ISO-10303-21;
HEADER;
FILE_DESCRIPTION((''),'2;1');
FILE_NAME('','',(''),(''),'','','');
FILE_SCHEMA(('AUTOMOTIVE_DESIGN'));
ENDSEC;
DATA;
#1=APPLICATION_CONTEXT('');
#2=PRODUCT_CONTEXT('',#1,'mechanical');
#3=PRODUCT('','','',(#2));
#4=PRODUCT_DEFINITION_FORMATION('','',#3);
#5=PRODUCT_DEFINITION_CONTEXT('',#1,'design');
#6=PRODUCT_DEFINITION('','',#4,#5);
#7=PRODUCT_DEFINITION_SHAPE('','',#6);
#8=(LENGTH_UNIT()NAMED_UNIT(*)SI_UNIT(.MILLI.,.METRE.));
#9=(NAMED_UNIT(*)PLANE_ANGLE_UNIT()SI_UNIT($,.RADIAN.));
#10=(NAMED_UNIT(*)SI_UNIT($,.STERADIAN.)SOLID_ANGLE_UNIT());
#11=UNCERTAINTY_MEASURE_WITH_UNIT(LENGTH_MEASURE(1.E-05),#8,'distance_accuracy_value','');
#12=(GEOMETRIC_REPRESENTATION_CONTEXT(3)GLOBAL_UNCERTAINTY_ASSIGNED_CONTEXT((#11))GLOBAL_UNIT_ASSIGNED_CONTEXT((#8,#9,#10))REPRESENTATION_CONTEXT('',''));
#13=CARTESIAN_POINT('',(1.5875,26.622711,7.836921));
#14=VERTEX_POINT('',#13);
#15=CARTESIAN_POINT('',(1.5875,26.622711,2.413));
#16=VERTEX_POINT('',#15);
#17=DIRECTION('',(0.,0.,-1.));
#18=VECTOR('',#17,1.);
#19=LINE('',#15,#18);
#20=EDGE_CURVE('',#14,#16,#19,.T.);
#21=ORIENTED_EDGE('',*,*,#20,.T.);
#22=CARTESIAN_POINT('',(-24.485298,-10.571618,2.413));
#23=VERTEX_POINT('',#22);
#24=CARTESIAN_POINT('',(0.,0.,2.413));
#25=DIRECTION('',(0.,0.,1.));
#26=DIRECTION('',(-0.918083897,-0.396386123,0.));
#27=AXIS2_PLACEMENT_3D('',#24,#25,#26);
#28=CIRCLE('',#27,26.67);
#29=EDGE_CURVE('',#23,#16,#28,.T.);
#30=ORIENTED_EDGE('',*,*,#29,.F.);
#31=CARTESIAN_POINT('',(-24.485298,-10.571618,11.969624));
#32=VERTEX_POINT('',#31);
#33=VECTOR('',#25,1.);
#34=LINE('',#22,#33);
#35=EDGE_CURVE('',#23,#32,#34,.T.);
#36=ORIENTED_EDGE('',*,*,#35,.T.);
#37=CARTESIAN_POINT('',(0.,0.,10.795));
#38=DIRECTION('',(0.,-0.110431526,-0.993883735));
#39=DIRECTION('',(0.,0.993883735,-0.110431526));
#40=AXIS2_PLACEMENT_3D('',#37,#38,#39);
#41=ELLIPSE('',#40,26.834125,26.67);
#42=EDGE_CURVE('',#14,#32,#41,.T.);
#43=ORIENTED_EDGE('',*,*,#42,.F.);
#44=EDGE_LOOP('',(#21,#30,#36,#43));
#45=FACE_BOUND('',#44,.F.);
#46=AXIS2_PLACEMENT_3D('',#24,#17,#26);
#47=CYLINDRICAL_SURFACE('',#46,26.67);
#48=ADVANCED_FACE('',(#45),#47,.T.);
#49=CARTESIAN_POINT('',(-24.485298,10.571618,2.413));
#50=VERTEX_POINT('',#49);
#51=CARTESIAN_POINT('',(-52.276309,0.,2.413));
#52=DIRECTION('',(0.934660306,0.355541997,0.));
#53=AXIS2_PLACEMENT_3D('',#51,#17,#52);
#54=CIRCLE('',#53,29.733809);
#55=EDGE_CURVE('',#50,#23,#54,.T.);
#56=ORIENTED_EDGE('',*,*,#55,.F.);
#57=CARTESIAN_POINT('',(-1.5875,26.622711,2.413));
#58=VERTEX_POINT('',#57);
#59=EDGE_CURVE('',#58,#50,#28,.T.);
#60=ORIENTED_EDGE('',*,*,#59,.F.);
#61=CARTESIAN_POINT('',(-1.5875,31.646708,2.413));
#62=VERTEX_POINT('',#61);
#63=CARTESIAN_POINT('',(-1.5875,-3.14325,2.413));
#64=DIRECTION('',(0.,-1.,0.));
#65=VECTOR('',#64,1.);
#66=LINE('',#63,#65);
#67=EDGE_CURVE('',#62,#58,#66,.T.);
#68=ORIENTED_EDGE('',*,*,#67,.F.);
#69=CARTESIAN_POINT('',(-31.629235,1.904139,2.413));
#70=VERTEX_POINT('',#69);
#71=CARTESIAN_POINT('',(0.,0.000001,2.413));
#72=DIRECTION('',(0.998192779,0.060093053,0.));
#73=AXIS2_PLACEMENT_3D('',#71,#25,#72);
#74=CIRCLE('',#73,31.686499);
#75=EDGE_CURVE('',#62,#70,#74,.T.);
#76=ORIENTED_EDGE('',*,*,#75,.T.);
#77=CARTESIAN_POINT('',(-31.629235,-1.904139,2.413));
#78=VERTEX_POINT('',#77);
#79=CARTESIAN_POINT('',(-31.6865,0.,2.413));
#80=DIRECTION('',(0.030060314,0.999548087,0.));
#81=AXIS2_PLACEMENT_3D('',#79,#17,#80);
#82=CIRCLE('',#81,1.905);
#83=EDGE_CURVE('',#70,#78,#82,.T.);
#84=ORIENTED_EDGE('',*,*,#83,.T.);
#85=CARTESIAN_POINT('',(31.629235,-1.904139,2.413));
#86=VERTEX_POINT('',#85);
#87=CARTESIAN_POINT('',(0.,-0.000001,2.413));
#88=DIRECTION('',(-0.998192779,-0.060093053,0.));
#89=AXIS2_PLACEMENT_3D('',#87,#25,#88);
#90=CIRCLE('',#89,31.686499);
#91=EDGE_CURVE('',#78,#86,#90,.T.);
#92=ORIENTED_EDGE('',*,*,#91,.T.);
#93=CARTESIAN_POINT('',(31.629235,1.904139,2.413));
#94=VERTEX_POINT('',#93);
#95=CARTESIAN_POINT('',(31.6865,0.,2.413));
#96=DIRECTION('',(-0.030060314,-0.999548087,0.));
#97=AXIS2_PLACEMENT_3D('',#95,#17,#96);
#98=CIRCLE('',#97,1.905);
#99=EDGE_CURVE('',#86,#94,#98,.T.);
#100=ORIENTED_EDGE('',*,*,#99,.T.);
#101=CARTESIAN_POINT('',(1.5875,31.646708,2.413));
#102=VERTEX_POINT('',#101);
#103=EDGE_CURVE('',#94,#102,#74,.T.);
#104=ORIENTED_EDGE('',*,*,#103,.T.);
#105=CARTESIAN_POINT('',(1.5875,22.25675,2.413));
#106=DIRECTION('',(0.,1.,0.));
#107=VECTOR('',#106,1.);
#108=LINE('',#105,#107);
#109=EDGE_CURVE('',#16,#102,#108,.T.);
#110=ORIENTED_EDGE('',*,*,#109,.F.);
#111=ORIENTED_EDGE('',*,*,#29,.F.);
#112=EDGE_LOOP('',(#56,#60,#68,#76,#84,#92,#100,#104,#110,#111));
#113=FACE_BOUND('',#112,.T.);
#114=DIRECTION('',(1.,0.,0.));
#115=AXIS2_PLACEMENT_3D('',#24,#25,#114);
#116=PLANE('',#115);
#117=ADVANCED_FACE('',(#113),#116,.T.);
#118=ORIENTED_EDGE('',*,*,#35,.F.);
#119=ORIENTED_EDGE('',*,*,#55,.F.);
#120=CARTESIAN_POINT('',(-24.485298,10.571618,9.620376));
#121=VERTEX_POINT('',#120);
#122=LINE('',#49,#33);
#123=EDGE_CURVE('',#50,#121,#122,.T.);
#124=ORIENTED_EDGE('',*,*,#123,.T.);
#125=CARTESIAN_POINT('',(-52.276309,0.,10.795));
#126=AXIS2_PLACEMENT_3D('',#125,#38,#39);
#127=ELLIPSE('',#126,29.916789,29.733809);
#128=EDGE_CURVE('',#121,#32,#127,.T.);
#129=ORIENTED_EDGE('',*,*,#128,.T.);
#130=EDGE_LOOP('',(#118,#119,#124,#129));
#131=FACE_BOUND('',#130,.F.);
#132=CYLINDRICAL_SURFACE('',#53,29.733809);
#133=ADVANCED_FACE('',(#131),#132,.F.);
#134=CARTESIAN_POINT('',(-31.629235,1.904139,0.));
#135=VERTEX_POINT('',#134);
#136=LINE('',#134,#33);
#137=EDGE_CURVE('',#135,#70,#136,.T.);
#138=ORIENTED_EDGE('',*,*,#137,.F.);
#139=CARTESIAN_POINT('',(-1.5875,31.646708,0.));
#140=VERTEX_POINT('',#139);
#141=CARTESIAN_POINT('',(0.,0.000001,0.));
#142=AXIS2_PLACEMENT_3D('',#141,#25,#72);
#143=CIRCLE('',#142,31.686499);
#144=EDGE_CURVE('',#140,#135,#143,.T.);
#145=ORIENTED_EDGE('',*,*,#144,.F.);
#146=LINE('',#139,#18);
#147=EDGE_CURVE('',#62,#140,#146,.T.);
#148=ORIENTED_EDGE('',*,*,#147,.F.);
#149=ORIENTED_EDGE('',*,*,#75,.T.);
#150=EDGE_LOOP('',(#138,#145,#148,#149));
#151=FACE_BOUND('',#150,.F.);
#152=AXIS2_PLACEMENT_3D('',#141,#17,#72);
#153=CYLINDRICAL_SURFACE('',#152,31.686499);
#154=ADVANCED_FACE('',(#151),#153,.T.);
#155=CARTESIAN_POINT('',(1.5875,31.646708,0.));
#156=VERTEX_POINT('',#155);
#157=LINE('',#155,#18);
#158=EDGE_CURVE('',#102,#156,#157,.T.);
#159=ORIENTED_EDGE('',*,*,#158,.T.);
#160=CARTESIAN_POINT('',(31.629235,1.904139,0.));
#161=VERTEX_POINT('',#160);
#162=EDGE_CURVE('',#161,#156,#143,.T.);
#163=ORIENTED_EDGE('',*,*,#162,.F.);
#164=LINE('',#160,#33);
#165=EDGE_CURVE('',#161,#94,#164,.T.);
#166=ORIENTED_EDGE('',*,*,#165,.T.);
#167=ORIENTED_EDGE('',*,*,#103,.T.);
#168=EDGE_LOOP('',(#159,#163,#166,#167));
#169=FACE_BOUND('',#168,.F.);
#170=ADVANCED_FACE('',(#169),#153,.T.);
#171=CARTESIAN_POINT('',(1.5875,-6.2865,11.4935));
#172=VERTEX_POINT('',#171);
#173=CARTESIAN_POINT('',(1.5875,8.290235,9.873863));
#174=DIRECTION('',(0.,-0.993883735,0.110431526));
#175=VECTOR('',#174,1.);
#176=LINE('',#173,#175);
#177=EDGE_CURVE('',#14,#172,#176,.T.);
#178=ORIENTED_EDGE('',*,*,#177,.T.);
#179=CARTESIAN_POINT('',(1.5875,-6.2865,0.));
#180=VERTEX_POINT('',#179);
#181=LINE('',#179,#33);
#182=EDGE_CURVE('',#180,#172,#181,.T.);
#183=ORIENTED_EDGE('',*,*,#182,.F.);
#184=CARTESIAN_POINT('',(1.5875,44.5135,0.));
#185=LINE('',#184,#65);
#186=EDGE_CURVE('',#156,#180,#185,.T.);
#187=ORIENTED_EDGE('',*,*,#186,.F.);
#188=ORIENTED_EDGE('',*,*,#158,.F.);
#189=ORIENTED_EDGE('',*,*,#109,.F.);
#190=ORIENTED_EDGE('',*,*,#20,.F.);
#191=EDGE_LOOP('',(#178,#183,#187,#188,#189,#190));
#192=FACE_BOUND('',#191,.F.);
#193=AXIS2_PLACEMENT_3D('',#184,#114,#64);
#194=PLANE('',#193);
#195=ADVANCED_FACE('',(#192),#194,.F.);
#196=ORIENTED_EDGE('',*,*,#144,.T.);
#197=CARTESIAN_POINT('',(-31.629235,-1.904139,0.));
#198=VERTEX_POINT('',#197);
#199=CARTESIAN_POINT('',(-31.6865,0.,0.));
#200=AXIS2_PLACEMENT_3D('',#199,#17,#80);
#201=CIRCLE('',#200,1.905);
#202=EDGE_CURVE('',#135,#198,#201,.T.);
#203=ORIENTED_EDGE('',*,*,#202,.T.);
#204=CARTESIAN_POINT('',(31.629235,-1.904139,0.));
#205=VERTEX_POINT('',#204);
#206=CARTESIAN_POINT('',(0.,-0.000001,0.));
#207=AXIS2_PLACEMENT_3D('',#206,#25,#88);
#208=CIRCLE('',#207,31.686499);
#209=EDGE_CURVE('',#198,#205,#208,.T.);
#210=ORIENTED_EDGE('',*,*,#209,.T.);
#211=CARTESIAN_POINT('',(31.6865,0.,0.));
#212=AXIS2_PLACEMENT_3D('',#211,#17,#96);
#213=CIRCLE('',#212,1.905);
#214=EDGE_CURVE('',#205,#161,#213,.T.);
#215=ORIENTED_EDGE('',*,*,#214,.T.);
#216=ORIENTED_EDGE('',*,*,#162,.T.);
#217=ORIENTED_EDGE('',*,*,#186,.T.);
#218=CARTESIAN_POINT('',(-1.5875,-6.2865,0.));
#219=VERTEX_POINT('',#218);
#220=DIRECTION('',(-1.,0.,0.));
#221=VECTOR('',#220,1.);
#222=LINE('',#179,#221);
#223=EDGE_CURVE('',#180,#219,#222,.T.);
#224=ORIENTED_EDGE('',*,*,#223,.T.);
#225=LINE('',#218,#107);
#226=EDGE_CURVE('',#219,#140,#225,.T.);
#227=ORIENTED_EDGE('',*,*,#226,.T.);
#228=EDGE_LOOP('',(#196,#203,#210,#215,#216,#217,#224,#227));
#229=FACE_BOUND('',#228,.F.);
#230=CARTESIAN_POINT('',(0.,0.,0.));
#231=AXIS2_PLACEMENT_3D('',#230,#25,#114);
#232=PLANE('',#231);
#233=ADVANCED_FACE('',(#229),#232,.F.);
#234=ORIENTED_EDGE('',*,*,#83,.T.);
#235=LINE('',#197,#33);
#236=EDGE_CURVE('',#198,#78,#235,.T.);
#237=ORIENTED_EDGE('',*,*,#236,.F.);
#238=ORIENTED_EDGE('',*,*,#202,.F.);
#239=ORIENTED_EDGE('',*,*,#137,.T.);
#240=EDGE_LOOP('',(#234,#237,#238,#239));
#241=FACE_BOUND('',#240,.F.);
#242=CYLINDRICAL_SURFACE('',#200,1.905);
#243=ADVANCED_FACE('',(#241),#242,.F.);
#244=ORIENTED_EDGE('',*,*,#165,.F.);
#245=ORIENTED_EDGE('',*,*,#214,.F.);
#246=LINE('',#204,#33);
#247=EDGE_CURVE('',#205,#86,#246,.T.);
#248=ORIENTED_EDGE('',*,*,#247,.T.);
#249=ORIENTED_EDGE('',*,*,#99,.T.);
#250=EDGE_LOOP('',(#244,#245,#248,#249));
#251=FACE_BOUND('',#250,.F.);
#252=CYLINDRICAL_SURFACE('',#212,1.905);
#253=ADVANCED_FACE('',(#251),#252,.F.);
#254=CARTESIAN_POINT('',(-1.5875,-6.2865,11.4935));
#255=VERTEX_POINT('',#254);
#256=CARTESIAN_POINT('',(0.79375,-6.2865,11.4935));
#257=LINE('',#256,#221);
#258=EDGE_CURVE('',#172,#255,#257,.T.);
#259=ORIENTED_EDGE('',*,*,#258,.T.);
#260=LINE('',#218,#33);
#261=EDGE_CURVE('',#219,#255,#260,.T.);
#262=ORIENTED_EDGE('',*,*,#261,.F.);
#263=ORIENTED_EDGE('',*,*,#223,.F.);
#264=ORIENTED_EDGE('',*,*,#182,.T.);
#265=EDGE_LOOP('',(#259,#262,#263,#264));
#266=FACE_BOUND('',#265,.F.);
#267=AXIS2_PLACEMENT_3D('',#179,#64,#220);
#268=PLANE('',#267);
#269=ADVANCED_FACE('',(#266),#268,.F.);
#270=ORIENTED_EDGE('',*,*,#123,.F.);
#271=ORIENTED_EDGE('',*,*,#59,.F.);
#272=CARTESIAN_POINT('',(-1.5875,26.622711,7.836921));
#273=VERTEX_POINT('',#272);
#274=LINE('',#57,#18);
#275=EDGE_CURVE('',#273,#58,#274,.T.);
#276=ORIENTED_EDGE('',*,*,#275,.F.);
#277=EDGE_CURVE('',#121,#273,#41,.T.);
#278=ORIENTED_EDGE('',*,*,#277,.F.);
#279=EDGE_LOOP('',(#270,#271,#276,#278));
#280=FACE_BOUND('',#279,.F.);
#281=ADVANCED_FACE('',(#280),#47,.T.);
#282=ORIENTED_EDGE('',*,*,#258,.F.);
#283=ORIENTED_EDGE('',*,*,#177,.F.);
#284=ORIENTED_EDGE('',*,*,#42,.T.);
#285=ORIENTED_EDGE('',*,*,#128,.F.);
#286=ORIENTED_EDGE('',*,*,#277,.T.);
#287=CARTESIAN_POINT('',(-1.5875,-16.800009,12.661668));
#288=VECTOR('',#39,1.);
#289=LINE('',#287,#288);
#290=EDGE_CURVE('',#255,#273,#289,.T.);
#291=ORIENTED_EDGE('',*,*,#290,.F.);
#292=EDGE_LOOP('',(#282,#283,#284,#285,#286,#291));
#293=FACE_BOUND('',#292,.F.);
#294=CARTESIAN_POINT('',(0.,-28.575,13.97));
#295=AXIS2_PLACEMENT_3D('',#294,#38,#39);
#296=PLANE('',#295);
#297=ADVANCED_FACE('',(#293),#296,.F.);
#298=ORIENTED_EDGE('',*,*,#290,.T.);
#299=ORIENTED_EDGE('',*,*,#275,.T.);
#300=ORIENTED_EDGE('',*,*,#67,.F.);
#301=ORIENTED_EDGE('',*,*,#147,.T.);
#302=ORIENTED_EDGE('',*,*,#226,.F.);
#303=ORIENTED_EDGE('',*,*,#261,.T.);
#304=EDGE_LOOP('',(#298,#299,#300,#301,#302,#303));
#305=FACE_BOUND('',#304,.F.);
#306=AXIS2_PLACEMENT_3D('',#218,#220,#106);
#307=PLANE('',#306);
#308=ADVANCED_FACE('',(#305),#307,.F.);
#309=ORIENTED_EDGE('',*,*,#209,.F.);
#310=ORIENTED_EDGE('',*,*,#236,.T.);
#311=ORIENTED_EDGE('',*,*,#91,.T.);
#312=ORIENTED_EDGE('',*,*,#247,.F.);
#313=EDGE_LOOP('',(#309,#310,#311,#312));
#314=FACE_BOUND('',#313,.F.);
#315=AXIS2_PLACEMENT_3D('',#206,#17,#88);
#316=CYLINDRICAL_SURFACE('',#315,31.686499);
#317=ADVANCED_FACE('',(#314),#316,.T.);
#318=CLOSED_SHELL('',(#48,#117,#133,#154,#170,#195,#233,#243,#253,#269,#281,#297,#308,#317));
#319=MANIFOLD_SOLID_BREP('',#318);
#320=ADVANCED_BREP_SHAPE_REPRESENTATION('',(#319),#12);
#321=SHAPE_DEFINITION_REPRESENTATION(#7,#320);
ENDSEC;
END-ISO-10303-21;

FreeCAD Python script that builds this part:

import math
import FreeCAD as App
import Part
import Sketcher
Q = App.Units.Quantity

doc = App.newDocument("Part")
body = doc.addObject("PartDesign::Body", "Body")

# Sketch on XY plane
sketch1 = doc.addObject("Sketcher::SketchObject", "Sketch")
body.addObject(sketch1)
sketch1.AttachmentSupport = (doc.XY_Plane, [""])
sketch1.MapMode = "FlatFace"
sketch1.addGeometry(Part.ArcOfCircle(Part.Circle(App.Vector(31.7, 0, 0), App.Vector(0, 0, 1), 1.9), math.radians(92), math.radians(268)), False)
sketch1.addGeometry(Part.ArcOfCircle(Part.Circle(App.Vector(0, 0, 0), App.Vector(0, 0, 1), 31.7), math.radians(3), math.radians(177)), False)
sketch1.addGeometry(Part.ArcOfCircle(Part.Circle(App.Vector(-31.7, 0, 0), App.Vector(0, 0, 1), 1.9), math.radians(-88), math.radians(88)), False)
sketch1.addGeometry(Part.ArcOfCircle(Part.Circle(App.Vector(0, 0, 0), App.Vector(0, 0, 1), 31.7), math.radians(-177), math.radians(-3)), False)
sketch1.addConstraint(Sketcher.Constraint("Coincident", 0, 1, 1, 1))
sketch1.addConstraint(Sketcher.Constraint("Coincident", 1, 2, 2, 2))
sketch1.addConstraint(Sketcher.Constraint("Coincident", 2, 1, 3, 1))
sketch1.addConstraint(Sketcher.Constraint("Coincident", 3, 2, 0, 2))
sketch1.addConstraint(Sketcher.Constraint("Coincident", 1, 3, -1, 1))
sketch1.addConstraint(Sketcher.Constraint("Coincident", 3, 3, -1, 1))
sketch1.addConstraint(Sketcher.Constraint("Equal", 0, 2))
sketch1.addConstraint(Sketcher.Constraint("Equal", 1, 3))
sketch1.addConstraint(Sketcher.Constraint("Symmetric", 0, 3, 2, 3, -1, 1))
sketch1.addConstraint(Sketcher.Constraint("PointOnObject", 0, 3, -1))
sketch1.addConstraint(Sketcher.Constraint("Radius", 0, Q("0.075 in")))
sketch1.addConstraint(Sketcher.Constraint("Radius", 1, Q("1.2475 in")))
sketch1.addConstraint(Sketcher.Constraint("DistanceX", 2, 3, 0, 3, Q("2.495 in")))
pad1 = doc.addObject("PartDesign::Pad", "Pad")
body.addObject(pad1)
pad1.Profile = sketch1
pad1.Length = Q("0.095 in")

# Sketch on XY plane
sketch2 = doc.addObject("Sketcher::SketchObject", "Sketch001")
body.addObject(sketch2)
sketch2.AttachmentSupport = (doc.XY_Plane, [""])
sketch2.MapMode = "FlatFace"
sketch2.AttachmentOffset = App.Placement(App.Vector(0, 0, 0.095 * 25.4), App.Rotation())
sketch2.addGeometry(Part.ArcOfCircle(Part.Circle(App.Vector(-52, 0, 0), App.Vector(0, 0, 1), 30), math.radians(-21), math.radians(21)), False)
sketch2.addGeometry(Part.ArcOfCircle(Part.Circle(App.Vector(0, 0, 0), App.Vector(0, 0, 1), 27), math.radians(-157), math.radians(157)), False)
sketch2.addConstraint(Sketcher.Constraint("Coincident", 0, 1, 1, 1))
sketch2.addConstraint(Sketcher.Constraint("Coincident", 1, 2, 0, 2))
sketch2.addConstraint(Sketcher.Constraint("Coincident", 1, 3, -1, 1))
sketch2.addConstraint(Sketcher.Constraint("PointOnObject", 0, 3, -1))
sketch2.addConstraint(Sketcher.Constraint("Radius", 1, Q("1.05 in")))
sketch2.addConstraint(Sketcher.Constraint("Radius", 0, Q("29.733809 mm")))
sketch2.addConstraint(Sketcher.Constraint("DistanceX", 0, 3, -1, 1, Q("52.276309 mm")))
pad2 = doc.addObject("PartDesign::Pad", "Pad001")
body.addObject(pad2)
pad2.Profile = sketch2
pad2.Length = Q("1 in")

# Sketch on YZ plane
sketch3 = doc.addObject("Sketcher::SketchObject", "Sketch002")
body.addObject(sketch3)
sketch3.AttachmentSupport = (doc.YZ_Plane, [""])
sketch3.MapMode = "FlatFace"
sketch3.addGeometry(Part.LineSegment(App.Vector(-29, 37, 0), App.Vector(-29, 14, 0)), False)
sketch3.addGeometry(Part.LineSegment(App.Vector(-29, 14, 0), App.Vector(29, 8, 0)), False)
sketch3.addGeometry(Part.LineSegment(App.Vector(29, 8, 0), App.Vector(29, 37, 0)), False)
sketch3.addGeometry(Part.LineSegment(App.Vector(29, 37, 0), App.Vector(-29, 37, 0)), False)
sketch3.addConstraint(Sketcher.Constraint("Coincident", 0, 2, 1, 1))
sketch3.addConstraint(Sketcher.Constraint("Coincident", 1, 2, 2, 1))
sketch3.addConstraint(Sketcher.Constraint("Coincident", 2, 2, 3, 1))
sketch3.addConstraint(Sketcher.Constraint("Coincident", 3, 2, 0, 1))
sketch3.addConstraint(Sketcher.Constraint("Vertical", 0))
sketch3.addConstraint(Sketcher.Constraint("Vertical", 2))
sketch3.addConstraint(Sketcher.Constraint("Horizontal", 3))
sketch3.addConstraint(Sketcher.Constraint("DistanceX", 3, 2, 3, 1, Q("2.25 in")))
sketch3.addConstraint(Sketcher.Constraint("DistanceY", -1, 1, 1, 2, Q("0.3 in")))
sketch3.addConstraint(Sketcher.Constraint("DistanceY", -1, 1, 0, 2, Q("0.55 in")))
sketch3.addConstraint(Sketcher.Constraint("DistanceX", 0, 2, -1, 1, Q("1.125 in")))
sketch3.addConstraint(Sketcher.Constraint("DistanceY", 0, 2, 0, 1, Q("22.83041 mm")))
pocket1 = doc.addObject("PartDesign::Pocket", "Pocket")
body.addObject(pocket1)
pocket1.Profile = sketch3
pocket1.Length = Q("2.5 in")
pocket1.Midplane = True

# Sketch on XY plane
sketch4 = doc.addObject("Sketcher::SketchObject", "Sketch003")
body.addObject(sketch4)
sketch4.AttachmentSupport = (doc.XY_Plane, [""])
sketch4.MapMode = "FlatFace"
sketch4.addGeometry(Part.LineSegment(App.Vector(-1.6, -6.3, 0), App.Vector(-1.6, 44.5, 0)), False)
sketch4.addGeometry(Part.LineSegment(App.Vector(-1.6, 44.5, 0), App.Vector(1.6, 44.5, 0)), False)
sketch4.addGeometry(Part.LineSegment(App.Vector(1.6, 44.5, 0), App.Vector(1.6, -6.3, 0)), False)
sketch4.addGeometry(Part.LineSegment(App.Vector(1.6, -6.3, 0), App.Vector(-1.6, -6.3, 0)), False)
sketch4.addConstraint(Sketcher.Constraint("Coincident", 0, 2, 1, 1))
sketch4.addConstraint(Sketcher.Constraint("Coincident", 1, 2, 2, 1))
sketch4.addConstraint(Sketcher.Constraint("Coincident", 2, 2, 3, 1))
sketch4.addConstraint(Sketcher.Constraint("Coincident", 3, 2, 0, 1))
sketch4.addConstraint(Sketcher.Constraint("Vertical", 0))
sketch4.addConstraint(Sketcher.Constraint("Horizontal", 1))
sketch4.addConstraint(Sketcher.Constraint("Vertical", 2))
sketch4.addConstraint(Sketcher.Constraint("Horizontal", 3))
sketch4.addConstraint(Sketcher.Constraint("DistanceY", 0, 1, 0, 2, Q("2 in")))
sketch4.addConstraint(Sketcher.Constraint("DistanceX", 1, 1, 1, 2, Q("0.125 in")))
sketch4.addConstraint(Sketcher.Constraint("DistanceX", 0, 2, -1, 1, Q("0.0625 in")))
sketch4.addConstraint(Sketcher.Constraint("DistanceY", -1, 1, 0, 2, Q("1.7525 in")))
pocket2 = doc.addObject("PartDesign::Pocket", "Pocket001")
body.addObject(pocket2)
pocket2.Profile = sketch4
pocket2.Length = Q("1 in")
pocket2.Reversed = True

doc.recompute()
